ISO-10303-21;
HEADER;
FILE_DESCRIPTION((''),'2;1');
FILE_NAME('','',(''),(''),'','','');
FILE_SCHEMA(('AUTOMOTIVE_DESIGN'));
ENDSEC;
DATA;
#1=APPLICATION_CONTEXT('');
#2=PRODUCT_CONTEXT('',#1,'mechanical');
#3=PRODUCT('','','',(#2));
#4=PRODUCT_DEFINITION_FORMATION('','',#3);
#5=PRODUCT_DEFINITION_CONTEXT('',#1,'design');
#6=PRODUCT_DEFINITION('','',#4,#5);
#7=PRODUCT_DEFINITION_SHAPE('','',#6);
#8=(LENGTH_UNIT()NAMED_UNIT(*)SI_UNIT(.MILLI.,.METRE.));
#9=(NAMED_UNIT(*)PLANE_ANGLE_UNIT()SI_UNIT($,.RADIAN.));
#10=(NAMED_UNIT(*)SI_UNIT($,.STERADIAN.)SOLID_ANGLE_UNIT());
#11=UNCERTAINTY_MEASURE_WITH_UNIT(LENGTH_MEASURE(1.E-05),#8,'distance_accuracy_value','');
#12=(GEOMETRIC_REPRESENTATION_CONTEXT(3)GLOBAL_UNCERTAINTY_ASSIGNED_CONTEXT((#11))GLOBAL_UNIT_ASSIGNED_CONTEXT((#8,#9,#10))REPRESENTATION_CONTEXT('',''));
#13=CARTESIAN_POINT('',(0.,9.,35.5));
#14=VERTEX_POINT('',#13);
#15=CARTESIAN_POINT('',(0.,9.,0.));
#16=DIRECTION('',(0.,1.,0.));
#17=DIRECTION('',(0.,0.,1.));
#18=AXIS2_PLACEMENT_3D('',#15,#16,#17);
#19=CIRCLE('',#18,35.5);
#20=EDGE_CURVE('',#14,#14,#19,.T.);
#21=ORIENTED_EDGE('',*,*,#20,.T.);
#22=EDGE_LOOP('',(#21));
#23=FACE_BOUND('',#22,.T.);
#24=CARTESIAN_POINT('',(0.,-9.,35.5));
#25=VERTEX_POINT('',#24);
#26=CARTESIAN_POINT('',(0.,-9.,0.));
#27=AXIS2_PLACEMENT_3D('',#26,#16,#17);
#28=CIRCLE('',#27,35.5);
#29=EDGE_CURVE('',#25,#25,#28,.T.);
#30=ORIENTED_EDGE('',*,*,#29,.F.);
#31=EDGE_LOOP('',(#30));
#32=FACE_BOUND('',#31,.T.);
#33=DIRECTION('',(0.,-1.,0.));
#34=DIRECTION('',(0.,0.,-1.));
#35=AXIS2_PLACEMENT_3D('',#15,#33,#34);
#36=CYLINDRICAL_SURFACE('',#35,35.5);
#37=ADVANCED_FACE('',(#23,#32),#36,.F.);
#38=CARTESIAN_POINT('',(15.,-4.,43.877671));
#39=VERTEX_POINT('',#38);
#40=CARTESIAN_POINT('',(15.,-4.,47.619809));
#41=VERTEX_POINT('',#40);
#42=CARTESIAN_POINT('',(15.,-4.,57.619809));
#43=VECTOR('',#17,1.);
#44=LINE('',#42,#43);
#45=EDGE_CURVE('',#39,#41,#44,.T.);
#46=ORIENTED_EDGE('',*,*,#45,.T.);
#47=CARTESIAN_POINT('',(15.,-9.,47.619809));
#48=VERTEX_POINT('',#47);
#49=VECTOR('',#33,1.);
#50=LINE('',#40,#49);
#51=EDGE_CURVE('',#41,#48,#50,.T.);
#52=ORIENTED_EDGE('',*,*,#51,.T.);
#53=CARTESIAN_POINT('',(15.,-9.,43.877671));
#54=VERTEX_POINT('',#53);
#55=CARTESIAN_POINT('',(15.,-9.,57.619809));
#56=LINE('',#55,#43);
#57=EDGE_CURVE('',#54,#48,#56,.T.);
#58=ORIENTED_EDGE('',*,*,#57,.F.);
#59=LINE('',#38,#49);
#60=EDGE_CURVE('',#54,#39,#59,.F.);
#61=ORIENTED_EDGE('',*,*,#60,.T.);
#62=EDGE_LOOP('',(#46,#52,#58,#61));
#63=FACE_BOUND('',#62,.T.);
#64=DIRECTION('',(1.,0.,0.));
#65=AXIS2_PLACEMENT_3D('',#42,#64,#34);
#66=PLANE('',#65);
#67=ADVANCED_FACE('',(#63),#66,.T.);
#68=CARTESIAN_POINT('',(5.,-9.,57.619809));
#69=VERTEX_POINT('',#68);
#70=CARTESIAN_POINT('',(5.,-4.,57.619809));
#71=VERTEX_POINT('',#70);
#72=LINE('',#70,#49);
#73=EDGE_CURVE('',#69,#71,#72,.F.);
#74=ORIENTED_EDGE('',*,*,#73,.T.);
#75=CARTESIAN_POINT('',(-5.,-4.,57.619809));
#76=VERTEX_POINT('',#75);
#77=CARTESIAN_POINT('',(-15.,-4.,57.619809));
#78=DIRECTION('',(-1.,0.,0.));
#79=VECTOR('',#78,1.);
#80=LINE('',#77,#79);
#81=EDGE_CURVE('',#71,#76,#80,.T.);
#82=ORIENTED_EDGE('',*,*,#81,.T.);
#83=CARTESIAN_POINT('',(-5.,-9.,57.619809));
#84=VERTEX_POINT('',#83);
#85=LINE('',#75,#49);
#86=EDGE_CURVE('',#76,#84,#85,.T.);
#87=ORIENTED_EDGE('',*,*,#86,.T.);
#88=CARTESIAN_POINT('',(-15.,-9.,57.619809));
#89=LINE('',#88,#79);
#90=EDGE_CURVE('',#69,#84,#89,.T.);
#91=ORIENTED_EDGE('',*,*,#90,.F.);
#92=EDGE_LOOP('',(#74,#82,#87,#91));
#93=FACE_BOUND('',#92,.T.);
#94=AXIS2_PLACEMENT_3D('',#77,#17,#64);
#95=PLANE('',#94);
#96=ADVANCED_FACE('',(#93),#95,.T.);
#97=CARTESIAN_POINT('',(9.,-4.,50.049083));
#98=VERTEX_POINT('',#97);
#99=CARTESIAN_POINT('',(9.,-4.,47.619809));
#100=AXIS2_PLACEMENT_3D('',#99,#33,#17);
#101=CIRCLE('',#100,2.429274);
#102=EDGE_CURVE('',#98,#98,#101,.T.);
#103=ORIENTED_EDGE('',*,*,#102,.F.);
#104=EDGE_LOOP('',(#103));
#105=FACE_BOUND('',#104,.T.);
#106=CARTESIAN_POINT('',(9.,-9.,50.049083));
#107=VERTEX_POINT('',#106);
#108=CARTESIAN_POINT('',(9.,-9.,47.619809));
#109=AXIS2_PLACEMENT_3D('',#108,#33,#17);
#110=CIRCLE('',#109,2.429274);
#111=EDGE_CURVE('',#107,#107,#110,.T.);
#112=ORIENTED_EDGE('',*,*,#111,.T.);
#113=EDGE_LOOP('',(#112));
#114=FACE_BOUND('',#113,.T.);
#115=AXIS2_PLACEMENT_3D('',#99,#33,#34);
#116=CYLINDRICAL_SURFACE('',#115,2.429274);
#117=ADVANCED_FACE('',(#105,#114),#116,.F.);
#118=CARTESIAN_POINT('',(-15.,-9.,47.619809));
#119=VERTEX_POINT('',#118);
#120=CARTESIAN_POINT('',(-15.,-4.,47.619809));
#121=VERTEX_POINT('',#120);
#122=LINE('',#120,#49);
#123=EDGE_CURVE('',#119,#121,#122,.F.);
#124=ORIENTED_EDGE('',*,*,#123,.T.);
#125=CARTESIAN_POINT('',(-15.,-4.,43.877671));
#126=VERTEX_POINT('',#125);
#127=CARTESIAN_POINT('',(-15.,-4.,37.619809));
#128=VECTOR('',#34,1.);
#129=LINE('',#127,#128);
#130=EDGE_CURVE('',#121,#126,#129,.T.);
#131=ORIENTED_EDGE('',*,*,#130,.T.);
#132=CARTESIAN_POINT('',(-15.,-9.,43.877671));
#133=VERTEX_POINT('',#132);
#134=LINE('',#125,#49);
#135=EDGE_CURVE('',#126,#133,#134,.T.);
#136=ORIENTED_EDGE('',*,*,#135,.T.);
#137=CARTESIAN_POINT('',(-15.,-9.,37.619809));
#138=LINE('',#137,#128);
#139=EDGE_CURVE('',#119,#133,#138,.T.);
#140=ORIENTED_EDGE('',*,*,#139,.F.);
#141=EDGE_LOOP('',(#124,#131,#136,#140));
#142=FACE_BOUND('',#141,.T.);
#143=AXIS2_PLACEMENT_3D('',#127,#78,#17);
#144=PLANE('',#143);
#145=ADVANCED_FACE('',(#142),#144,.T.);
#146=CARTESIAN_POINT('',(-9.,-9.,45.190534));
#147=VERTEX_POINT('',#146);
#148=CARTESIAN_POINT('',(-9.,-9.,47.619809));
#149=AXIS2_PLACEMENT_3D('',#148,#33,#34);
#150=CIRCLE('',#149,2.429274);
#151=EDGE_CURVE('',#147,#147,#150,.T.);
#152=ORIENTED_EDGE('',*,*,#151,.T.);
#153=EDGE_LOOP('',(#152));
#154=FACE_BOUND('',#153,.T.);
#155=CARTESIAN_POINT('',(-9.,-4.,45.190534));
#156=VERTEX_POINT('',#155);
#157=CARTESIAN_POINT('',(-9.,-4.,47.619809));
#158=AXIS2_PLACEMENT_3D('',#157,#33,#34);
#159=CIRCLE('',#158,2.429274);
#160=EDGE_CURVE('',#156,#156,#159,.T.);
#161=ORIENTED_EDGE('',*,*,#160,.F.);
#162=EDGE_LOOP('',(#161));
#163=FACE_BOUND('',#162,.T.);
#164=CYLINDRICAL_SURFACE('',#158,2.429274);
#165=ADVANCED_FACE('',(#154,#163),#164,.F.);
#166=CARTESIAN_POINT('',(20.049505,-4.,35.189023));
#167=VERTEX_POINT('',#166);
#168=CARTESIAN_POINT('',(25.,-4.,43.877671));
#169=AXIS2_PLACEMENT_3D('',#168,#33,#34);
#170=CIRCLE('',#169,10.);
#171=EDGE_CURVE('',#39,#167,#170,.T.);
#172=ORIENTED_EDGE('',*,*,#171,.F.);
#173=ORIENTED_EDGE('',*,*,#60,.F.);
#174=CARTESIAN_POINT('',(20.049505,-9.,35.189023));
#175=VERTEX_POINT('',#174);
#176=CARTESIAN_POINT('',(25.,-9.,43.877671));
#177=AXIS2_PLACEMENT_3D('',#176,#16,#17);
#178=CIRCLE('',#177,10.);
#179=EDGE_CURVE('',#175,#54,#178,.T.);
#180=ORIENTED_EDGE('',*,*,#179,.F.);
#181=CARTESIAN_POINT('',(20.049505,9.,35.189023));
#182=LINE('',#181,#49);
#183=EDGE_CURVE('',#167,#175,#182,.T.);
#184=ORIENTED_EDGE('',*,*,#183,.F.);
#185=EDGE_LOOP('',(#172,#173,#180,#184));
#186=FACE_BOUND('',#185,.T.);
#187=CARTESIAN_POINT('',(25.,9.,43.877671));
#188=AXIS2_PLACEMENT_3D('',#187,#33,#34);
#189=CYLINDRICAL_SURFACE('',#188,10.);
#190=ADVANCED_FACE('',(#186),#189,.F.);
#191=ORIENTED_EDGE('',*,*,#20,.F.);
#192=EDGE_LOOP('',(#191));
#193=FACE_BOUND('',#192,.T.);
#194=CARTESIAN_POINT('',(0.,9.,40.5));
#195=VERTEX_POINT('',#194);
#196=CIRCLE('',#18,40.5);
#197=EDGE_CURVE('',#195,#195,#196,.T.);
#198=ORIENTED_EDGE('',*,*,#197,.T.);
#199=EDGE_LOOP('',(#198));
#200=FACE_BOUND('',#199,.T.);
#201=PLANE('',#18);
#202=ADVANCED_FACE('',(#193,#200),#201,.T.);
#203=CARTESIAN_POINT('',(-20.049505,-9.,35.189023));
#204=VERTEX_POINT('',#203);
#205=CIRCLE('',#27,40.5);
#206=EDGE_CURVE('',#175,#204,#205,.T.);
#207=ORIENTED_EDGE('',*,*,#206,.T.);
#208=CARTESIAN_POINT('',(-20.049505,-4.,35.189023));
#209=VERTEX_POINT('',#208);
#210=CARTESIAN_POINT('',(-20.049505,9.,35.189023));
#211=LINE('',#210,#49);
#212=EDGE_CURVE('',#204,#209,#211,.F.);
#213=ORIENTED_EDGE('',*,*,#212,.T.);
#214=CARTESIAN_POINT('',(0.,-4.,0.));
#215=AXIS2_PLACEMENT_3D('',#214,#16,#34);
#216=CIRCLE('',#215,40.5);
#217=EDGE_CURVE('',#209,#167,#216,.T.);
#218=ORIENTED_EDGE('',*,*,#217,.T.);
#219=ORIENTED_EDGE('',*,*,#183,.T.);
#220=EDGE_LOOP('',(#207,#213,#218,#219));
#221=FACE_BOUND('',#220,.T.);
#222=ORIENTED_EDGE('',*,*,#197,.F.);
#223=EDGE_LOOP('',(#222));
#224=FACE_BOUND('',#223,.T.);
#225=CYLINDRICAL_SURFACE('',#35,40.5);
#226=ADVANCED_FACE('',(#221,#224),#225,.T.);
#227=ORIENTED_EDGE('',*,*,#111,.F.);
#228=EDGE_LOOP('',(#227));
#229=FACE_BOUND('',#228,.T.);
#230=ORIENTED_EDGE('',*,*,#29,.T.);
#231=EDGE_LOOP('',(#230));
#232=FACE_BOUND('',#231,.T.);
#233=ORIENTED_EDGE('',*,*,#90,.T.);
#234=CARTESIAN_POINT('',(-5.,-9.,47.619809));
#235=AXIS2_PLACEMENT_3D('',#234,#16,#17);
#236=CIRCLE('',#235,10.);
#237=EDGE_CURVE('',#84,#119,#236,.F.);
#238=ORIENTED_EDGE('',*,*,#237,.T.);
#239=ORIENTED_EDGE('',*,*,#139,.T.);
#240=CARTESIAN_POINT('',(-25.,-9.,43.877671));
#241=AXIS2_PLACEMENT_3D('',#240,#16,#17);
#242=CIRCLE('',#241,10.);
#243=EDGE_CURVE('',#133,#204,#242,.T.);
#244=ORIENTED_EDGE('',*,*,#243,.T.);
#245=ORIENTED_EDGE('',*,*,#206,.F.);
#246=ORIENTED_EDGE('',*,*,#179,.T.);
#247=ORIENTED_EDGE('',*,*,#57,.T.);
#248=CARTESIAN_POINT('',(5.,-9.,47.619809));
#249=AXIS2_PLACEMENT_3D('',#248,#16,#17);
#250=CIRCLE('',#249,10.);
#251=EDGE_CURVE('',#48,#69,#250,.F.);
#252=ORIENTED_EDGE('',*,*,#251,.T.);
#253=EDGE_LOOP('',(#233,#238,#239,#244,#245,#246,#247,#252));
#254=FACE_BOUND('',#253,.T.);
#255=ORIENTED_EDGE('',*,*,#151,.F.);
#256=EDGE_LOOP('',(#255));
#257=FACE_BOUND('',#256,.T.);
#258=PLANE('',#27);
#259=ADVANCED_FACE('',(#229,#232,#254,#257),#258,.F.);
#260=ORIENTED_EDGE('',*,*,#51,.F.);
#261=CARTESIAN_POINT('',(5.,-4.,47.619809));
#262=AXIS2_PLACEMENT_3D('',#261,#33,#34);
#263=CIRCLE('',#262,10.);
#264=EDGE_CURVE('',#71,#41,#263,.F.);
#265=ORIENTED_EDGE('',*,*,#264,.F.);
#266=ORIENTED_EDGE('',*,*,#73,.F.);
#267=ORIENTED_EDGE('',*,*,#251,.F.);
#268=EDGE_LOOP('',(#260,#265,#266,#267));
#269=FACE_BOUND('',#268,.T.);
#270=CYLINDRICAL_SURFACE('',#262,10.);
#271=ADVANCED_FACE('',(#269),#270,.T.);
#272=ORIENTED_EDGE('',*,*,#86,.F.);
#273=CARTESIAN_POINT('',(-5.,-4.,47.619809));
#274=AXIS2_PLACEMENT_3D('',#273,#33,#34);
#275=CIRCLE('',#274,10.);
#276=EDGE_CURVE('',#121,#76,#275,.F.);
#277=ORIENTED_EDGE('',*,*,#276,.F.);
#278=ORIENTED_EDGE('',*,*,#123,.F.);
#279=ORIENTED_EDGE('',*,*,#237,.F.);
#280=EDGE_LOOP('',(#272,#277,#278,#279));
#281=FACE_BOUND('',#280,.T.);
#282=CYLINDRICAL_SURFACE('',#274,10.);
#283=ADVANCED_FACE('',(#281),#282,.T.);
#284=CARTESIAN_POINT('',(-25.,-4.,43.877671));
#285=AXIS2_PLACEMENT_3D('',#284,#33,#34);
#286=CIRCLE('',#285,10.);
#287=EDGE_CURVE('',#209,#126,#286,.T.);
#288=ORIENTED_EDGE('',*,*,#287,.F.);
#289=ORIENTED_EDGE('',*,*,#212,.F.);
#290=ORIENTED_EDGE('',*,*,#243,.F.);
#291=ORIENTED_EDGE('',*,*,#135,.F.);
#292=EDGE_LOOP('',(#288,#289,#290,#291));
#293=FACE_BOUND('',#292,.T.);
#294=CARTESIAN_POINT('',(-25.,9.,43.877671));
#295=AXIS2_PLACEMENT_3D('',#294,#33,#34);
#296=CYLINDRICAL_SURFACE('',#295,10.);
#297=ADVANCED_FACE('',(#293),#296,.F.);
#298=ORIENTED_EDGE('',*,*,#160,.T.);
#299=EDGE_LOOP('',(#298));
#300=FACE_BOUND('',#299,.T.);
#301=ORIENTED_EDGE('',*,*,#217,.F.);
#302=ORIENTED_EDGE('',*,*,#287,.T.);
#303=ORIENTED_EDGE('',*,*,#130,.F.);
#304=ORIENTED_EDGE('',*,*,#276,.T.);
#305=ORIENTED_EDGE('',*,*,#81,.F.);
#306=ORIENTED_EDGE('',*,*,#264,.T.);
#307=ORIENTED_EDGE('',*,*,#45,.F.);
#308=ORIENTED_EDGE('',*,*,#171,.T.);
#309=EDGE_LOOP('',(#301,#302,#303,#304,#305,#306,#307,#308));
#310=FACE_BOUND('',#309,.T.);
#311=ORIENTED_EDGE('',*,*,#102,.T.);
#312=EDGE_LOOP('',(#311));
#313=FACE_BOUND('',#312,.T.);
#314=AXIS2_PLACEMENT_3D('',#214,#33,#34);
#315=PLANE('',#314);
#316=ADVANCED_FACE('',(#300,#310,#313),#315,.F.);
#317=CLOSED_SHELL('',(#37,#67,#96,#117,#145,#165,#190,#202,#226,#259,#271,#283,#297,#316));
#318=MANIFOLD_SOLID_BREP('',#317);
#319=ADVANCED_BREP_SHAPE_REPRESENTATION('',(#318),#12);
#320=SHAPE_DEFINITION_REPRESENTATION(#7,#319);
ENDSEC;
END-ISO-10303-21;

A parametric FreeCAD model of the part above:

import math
import FreeCAD as App
import Part
import Sketcher


def edges_at(feature, points):
    """Names of the edges that pass closest to the given points."""
    edges = feature.Shape.Edges
    near = lambda p: min(range(len(edges)), key=lambda i: edges[i].distToShape(Part.Vertex(*p))[0])
    return sorted({f"Edge{near(p) + 1}" for p in points})

doc = App.newDocument("Part")
body = doc.addObject("PartDesign::Body", "Body")

# Sketch on XZ plane
sketch1 = body.newObject("Sketcher::SketchObject", "Sketch")
sketch1.AttachmentSupport = (doc.getObject("XZ_Plane"), [""])
sketch1.MapMode = "FlatFace"
sketch1.addGeometry(Part.Circle(App.Vector(0, 0, 0), App.Vector(0, 0, 1), 40), False)
sketch1.addGeometry(Part.Circle(App.Vector(0, 0, 0), App.Vector(0, 0, 1), 36), False)
sketch1.addConstraint(Sketcher.Constraint("Coincident", 0, 3, -1, 1))
sketch1.addConstraint(Sketcher.Constraint("Coincident", 1, 3, -1, 1))
sketch1.addConstraint(Sketcher.Constraint("Diameter", 0, 81.0))
sketch1.addConstraint(Sketcher.Constraint("Diameter", 1, 71.0))
pad1 = body.newObject("PartDesign::Pad", "Pad")
pad1.Profile = sketch1
pad1.Length = 18
pad1.Midplane = True

# Sketch on XZ plane
sketch2 = body.newObject("Sketcher::SketchObject", "Sketch001")
sketch2.AttachmentSupport = (doc.getObject("XZ_Plane"), [""])
sketch2.MapMode = "FlatFace"
sketch2.AttachmentOffset = App.Placement(App.Vector(0, 0, 9), App.Rotation())
sketch2.addGeometry(Part.LineSegment(App.Vector(-15, 57.6, 0), App.Vector(-15, 37.6, 0)), False)
sketch2.addGeometry(Part.ArcOfCircle(Part.Circle(App.Vector(0, 0, 0), App.Vector(0, 0, 1), 40.5), math.radians(68), math.radians(112)), False)
sketch2.addGeometry(Part.LineSegment(App.Vector(15, 37.6, 0), App.Vector(15, 57.6, 0)), False)
sketch2.addGeometry(Part.LineSegment(App.Vector(15, 57.6, 0), App.Vector(-15, 57.6, 0)), False)
sketch2.addGeometry(Part.Circle(App.Vector(9, 47.6, 0), App.Vector(0, 0, 1), 2.4), False)
sketch2.addGeometry(Part.Circle(App.Vector(-9, 47.6, 0), App.Vector(0, 0, 1), 2.4), False)
sketch2.addConstraint(Sketcher.Constraint("Coincident", 0, 2, 1, 2))
sketch2.addConstraint(Sketcher.Constraint("Coincident", 1, 1, 2, 1))
sketch2.addConstraint(Sketcher.Constraint("Coincident", 2, 2, 3, 1))
sketch2.addConstraint(Sketcher.Constraint("Coincident", 3, 2, 0, 1))
sketch2.addConstraint(Sketcher.Constraint("Vertical", 0))
sketch2.addConstraint(Sketcher.Constraint("Vertical", 2))
sketch2.addConstraint(Sketcher.Constraint("Horizontal", 3))
sketch2.addConstraint(Sketcher.Constraint("Coincident", 1, 3, -1, 1))
sketch2.addConstraint(Sketcher.Constraint("Equal", 4, 5))
sketch2.addConstraint(Sketcher.Constraint("Symmetric", 4, 3, 5, 3, -2))
sketch2.addConstraint(Sketcher.Constraint("Horizontal", 0, 2, 1, 1))
sketch2.addConstraint(Sketcher.Constraint("Radius", 1, 40.5))
sketch2.addConstraint(Sketcher.Constraint("DistanceX", 3, 2, 3, 1, 30.0))
sketch2.addConstraint(Sketcher.Constraint("DistanceY", 0, 2, 0, 1, 20.0))
sketch2.addConstraint(Sketcher.Constraint("DistanceX", -1, 1, 4, 3, 9.0))
sketch2.addConstraint(Sketcher.Constraint("DistanceY", 0, 2, 5, 3, 10.0))
sketch2.addConstraint(Sketcher.Constraint("Diameter", 4, 4.858548))
pad2 = body.newObject("PartDesign::Pad", "Pad001")
pad2.Profile = sketch2
pad2.Length = 5
pad2.Reversed = True
doc.recompute()

fillet = body.newObject("PartDesign::Fillet", "Fillet")
fillet.Base = (pad2, edges_at(pad2, [
    (15, -6.5, 37.62),
    (-15, -6.5, 37.62),
    (-15, -6.5, 57.62),
    (15, -6.5, 57.62),
]))
fillet.Radius = 10

doc.recompute()
